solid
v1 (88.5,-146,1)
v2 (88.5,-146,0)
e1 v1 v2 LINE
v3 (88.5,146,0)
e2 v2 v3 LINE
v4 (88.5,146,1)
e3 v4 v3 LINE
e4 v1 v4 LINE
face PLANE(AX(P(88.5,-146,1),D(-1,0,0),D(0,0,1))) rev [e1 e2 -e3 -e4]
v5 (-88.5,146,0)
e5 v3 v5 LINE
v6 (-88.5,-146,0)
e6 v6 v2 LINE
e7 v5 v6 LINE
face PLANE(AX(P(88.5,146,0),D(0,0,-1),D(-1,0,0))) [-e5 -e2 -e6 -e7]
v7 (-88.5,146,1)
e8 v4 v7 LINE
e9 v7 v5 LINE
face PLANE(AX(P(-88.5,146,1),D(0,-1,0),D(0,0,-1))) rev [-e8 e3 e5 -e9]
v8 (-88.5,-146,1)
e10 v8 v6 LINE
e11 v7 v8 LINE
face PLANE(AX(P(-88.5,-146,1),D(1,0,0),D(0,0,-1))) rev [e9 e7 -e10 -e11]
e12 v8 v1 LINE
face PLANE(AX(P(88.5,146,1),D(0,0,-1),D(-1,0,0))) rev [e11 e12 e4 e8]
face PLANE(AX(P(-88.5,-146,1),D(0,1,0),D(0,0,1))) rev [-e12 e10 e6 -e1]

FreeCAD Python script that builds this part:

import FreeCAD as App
import Part
import Sketcher

doc = App.newDocument("Part")
body = doc.addObject("PartDesign::Body", "Body")

# Sketch on XY plane
sketch1 = body.newObject("Sketcher::SketchObject", "Sketch")
sketch1.AttachmentSupport = (doc.getObject("XY_Plane"), [""])
sketch1.MapMode = "FlatFace"
sketch1.addGeometry(Part.LineSegment(App.Vector(-88, 146, 0), App.Vector(-88, -146, 0)), False)
sketch1.addGeometry(Part.LineSegment(App.Vector(-88, -146, 0), App.Vector(88, -146, 0)), False)
sketch1.addGeometry(Part.LineSegment(App.Vector(88, -146, 0), App.Vector(88, 146, 0)), False)
sketch1.addGeometry(Part.LineSegment(App.Vector(88, 146, 0), App.Vector(-88, 146, 0)), False)
sketch1.addConstraint(Sketcher.Constraint("Coincident", 0, 2, 1, 1))
sketch1.addConstraint(Sketcher.Constraint("Coincident", 1, 2, 2, 1))
sketch1.addConstraint(Sketcher.Constraint("Coincident", 2, 2, 3, 1))
sketch1.addConstraint(Sketcher.Constraint("Coincident", 3, 2, 0, 1))
sketch1.addConstraint(Sketcher.Constraint("Vertical", 0))
sketch1.addConstraint(Sketcher.Constraint("Horizontal", 1))
sketch1.addConstraint(Sketcher.Constraint("Vertical", 2))
sketch1.addConstraint(Sketcher.Constraint("Horizontal", 3))
sketch1.addConstraint(Sketcher.Constraint("Symmetric", 0, 2, 2, 2, -1, 1))
sketch1.addConstraint(Sketcher.Constraint("DistanceX", 1, 1, 1, 2, 177.0))
sketch1.addConstraint(Sketcher.Constraint("DistanceY", 0, 2, 0, 1, 292.0))
pad1 = body.newObject("PartDesign::Pad", "Pad")
pad1.Profile = sketch1
pad1.Length = 1

doc.recompute()
